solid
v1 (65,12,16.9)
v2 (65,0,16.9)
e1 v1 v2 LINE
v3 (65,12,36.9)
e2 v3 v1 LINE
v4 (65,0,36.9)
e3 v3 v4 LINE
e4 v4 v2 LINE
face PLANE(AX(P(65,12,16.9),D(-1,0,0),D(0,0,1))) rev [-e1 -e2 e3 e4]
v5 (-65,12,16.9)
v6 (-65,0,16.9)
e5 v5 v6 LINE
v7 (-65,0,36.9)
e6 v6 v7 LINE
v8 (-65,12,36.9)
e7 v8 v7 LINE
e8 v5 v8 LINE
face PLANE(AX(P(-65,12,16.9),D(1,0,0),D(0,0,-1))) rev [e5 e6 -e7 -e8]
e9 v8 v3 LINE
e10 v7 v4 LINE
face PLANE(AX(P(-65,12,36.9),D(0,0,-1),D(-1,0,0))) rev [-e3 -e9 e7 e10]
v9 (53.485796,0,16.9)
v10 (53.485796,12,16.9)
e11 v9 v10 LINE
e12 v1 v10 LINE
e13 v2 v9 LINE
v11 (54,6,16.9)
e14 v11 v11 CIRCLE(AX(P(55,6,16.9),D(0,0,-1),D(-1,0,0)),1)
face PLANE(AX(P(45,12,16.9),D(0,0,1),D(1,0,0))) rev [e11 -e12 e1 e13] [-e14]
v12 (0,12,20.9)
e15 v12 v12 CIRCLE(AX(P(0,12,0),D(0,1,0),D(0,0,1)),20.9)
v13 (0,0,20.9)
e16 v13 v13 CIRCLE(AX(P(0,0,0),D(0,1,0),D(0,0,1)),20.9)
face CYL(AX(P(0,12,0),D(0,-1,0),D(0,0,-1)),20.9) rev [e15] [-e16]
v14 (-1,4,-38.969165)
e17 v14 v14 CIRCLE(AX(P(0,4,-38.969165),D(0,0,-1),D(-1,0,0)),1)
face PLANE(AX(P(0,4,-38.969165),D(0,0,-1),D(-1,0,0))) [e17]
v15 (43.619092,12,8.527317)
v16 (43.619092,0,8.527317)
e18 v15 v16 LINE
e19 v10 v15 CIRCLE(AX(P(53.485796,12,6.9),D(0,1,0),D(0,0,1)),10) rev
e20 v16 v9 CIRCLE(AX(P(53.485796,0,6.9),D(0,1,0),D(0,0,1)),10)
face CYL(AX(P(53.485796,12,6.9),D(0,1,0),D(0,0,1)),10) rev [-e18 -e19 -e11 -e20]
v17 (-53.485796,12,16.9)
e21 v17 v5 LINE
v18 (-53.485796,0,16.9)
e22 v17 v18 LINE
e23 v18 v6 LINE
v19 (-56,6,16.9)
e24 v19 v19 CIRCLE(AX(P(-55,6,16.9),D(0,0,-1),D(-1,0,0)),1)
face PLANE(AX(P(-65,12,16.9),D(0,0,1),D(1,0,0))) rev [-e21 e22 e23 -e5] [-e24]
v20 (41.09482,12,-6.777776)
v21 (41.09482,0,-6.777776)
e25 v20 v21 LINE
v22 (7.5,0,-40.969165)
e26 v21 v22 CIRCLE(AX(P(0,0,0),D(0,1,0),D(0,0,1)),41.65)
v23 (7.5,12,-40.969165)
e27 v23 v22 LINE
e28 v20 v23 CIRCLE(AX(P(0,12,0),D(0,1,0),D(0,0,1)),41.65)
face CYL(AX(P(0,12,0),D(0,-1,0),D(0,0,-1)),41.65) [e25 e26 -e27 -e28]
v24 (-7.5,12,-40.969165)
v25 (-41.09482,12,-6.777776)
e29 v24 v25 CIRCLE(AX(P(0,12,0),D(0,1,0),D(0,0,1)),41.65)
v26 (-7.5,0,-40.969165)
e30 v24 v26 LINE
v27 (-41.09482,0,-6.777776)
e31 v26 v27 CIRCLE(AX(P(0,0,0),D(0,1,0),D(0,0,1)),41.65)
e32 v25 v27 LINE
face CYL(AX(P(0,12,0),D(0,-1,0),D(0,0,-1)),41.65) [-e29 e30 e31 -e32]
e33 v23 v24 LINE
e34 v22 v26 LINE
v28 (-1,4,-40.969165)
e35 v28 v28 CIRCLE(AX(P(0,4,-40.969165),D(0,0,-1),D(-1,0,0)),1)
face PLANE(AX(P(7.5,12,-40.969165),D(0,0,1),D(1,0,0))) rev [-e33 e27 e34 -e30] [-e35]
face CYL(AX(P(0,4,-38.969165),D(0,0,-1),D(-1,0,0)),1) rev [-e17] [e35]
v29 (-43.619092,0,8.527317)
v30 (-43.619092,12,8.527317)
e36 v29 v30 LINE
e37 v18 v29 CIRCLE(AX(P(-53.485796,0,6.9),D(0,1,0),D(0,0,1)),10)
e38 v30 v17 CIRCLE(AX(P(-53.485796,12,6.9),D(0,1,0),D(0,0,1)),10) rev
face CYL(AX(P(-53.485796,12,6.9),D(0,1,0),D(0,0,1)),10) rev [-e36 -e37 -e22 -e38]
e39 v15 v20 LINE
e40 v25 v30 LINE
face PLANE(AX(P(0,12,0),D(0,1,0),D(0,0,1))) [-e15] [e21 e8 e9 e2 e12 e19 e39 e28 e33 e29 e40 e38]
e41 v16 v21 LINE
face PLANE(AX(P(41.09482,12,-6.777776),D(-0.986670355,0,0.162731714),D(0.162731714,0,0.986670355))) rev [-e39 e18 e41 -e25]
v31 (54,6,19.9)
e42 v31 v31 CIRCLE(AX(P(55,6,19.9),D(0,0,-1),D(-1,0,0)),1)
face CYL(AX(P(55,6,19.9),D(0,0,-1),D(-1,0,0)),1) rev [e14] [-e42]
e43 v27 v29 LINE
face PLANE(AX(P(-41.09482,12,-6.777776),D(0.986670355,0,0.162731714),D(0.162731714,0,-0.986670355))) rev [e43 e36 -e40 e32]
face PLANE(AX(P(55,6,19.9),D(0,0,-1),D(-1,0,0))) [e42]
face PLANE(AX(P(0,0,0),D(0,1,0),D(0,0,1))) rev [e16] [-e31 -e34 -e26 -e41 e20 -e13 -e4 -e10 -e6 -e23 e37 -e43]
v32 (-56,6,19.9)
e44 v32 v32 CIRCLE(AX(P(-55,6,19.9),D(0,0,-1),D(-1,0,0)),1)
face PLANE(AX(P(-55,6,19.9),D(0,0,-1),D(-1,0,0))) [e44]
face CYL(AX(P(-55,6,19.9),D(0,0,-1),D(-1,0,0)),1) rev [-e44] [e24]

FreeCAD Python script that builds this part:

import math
import FreeCAD as App
import Part
import Sketcher

V = App.Vector


def edges_at(feature, points):
    """Names of the edges that pass closest to the given points."""
    edges = feature.Shape.Edges
    near = lambda p: min(range(len(edges)), key=lambda i: edges[i].distToShape(Part.Vertex(*p))[0])
    return sorted({f"Edge{near(p) + 1}" for p in points})

doc = App.newDocument("Part")
params = doc.addObject("Spreadsheet::Sheet", "Params")
for row, (alias, value) in enumerate([
    ("sketch1_diameter", "41.8 mm"),
    ("sketch1_width", "20 mm"),
    ("sketch1_width2", "130 mm"),
    ("sketch1_radius", "41.65 mm"),
    ("pad1_length", "12 mm"),
    ("sketch2_diameter", "2 mm"),
    ("pocket1_length", "3 mm"),
    ("sketch3_diameter", "2 mm"),
    ("pocket2_length", "3 mm"),
    ("fillet_radius", "10 mm"),
    ("sketch4_width", "15 mm"),
    ("sketch5_diameter", "2 mm"),
    ("pocket4_length", "2 mm"),
], start=1):
    params.set(f"A{row}", alias)
    params.set(f"B{row}", "=" + value)
    params.setAlias(f"B{row}", alias)

body = doc.addObject("PartDesign::Body", "Body")

sketch1 = body.newObject("Sketcher::SketchObject", "Sketch")
sketch1.AttachmentSupport = (doc.getObject("XZ_Plane"), [""])
sketch1.MapMode = "FlatFace"
sketch1.addGeometry([
    Part.LineSegment(V(-41.09482, -6.777776, 0), V(-45, 16.9, 0)),
    Part.LineSegment(V(-45, 16.9, 0), V(-65, 16.9, 0)),
    Part.LineSegment(V(-65, 16.9, 0), V(-65, 36.9, 0)),
    Part.LineSegment(V(-65, 36.9, 0), V(65, 36.9, 0)),
    Part.LineSegment(V(65, 36.9, 0), V(65, 16.9, 0)),
    Part.LineSegment(V(65, 16.9, 0), V(45, 16.9, 0)),
    Part.LineSegment(V(45, 16.9, 0), V(41.09482, -6.777776, 0)),
    Part.ArcOfCircle(Part.Circle(V(0, 0, 0), V(0, 0, 1), 41.65), math.radians(-170.63451), math.radians(-9.36549)),
    Part.Circle(V(0, 0, 0), V(0, 0, 1), 20.9),
], False)
sketch1.addConstraint([
    Sketcher.Constraint("Coincident", 0, 2, 1, 1),
    Sketcher.Constraint("Coincident", 1, 2, 2, 1),
    Sketcher.Constraint("Coincident", 2, 2, 3, 1),
    Sketcher.Constraint("Coincident", 3, 2, 4, 1),
    Sketcher.Constraint("Coincident", 4, 2, 5, 1),
    Sketcher.Constraint("Coincident", 5, 2, 6, 1),
    Sketcher.Constraint("Tangent", 6, 2, 7, 2),
    Sketcher.Constraint("Tangent", 7, 1, 0, 1),
    Sketcher.Constraint("Horizontal", 1),
    Sketcher.Constraint("Vertical", 2),
    Sketcher.Constraint("Horizontal", 3),
    Sketcher.Constraint("Vertical", 4),
    Sketcher.Constraint("Horizontal", 5),
    Sketcher.Constraint("Coincident", 7, 3, -1, 1),
    Sketcher.Constraint("Coincident", 8, 3, -1, 1),
    Sketcher.Constraint("Symmetric", 1, 2, 4, 2, -2),
    Sketcher.Constraint("Horizontal", 6, 2, 7, 1),
    Sketcher.Constraint("Equal", 5, 2),
    Sketcher.Constraint("Diameter", 8, 41.8),
    Sketcher.Constraint("DistanceX", 1, 2, 1, 1, 20.0),
    Sketcher.Constraint("DistanceX", 3, 1, 3, 2, 130.0),
    Sketcher.Constraint("Radius", 7, 41.65),
    Sketcher.Constraint("DistanceY", -1, 1, 0, 2, 16.9),
])
sketch1.setExpression("Constraints[18]", "Params.sketch1_diameter")
sketch1.setExpression("Constraints[19]", "Params.sketch1_width")
sketch1.setExpression("Constraints[20]", "Params.sketch1_width2")
sketch1.setExpression("Constraints[21]", "Params.sketch1_radius")
pad1 = body.newObject("PartDesign::Pad", "Pad")
pad1.Profile = sketch1
pad1.setExpression("Length", "Params.pad1_length")
pad1.Reversed = True

sketch2 = body.newObject("Sketcher::SketchObject", "Sketch001")
sketch2.AttachmentSupport = (doc.getObject("XY_Plane"), [""])
sketch2.MapMode = "FlatFace"
sketch2.AttachmentOffset = App.Placement(V(0, 0, 16.9), App.Rotation())
sketch2.addGeometry(Part.Circle(V(55, 6, 0), V(0, 0, 1), 1), False)
sketch2.addConstraint([
    Sketcher.Constraint("Diameter", 0, 2.0),
    Sketcher.Constraint("DistanceX", -1, 1, 0, 3, 55.0),
    Sketcher.Constraint("DistanceY", -1, 1, 0, 3, 6.0),
])
sketch2.setExpression("Constraints[0]", "Params.sketch2_diameter")
pocket1 = body.newObject("PartDesign::Pocket", "Pocket")
pocket1.Profile = sketch2
pocket1.setExpression("Length", "Params.pocket1_length")
pocket1.Reversed = True

sketch3 = body.newObject("Sketcher::SketchObject", "Sketch002")
sketch3.AttachmentSupport = (doc.getObject("XY_Plane"), [""])
sketch3.MapMode = "FlatFace"
sketch3.AttachmentOffset = App.Placement(V(0, 0, 16.9), App.Rotation())
sketch3.addGeometry(Part.Circle(V(-55, 6, 0), V(0, 0, 1), 1), False)
sketch3.addConstraint([
    Sketcher.Constraint("Diameter", 0, 2.0),
    Sketcher.Constraint("DistanceX", 0, 3, -1, 1, 55.0),
    Sketcher.Constraint("DistanceY", -1, 1, 0, 3, 6.0),
])
sketch3.setExpression("Constraints[0]", "Params.sketch3_diameter")
pocket2 = body.newObject("PartDesign::Pocket", "Pocket001")
pocket2.Profile = sketch3
pocket2.setExpression("Length", "Params.pocket2_length")
pocket2.Reversed = True
doc.recompute()

fillet = body.newObject("PartDesign::Fillet", "Fillet")
fillet.Base = (pocket2, edges_at(pocket2, [(-45, 6, 16.9), (45, 6, 16.9)]))
fillet.setExpression("Radius", "Params.fillet_radius")

sketch4 = body.newObject("Sketcher::SketchObject", "Sketch003")
sketch4.AttachmentSupport = (doc.getObject("XZ_Plane"), [""])
sketch4.MapMode = "FlatFace"
sketch4.addGeometry([
    Part.LineSegment(V(-7.5, -40.969165, 0), V(-7.5, -44.957865, 0)),
    Part.LineSegment(V(-7.5, -44.957865, 0), V(7.5, -44.957865, 0)),
    Part.LineSegment(V(7.5, -44.957865, 0), V(7.5, -40.969165, 0)),
    Part.LineSegment(V(7.5, -40.969165, 0), V(-7.5, -40.969165, 0)),
], False)
sketch4.addConstraint([
    Sketcher.Constraint("Coincident", 0, 2, 1, 1),
    Sketcher.Constraint("Coincident", 1, 2, 2, 1),
    Sketcher.Constraint("Coincident", 2, 2, 3, 1),
    Sketcher.Constraint("Coincident", 3, 2, 0, 1),
    Sketcher.Constraint("Vertical", 0),
    Sketcher.Constraint("Horizontal", 1),
    Sketcher.Constraint("Vertical", 2),
    Sketcher.Constraint("Horizontal", 3),
    Sketcher.Constraint("DistanceX", 1, 1, 1, 2, 15.0),
    Sketcher.Constraint("DistanceX", 0, 2, -1, 1, 7.5),
    Sketcher.Constraint("DistanceY", 0, 2, 0, 1, 3.9887),
    Sketcher.Constraint("DistanceY", 0, 2, -1, 1, 44.957865),
])
sketch4.setExpression("Constraints[8]", "Params.sketch4_width")
pocket3 = body.newObject("PartDesign::Pocket", "Pocket002")
pocket3.Profile = sketch4
pocket3.Type = "ThroughAll"

sketch5 = body.newObject("Sketcher::SketchObject", "Sketch004")
sketch5.AttachmentSupport = (doc.getObject("XY_Plane"), [""])
sketch5.MapMode = "FlatFace"
sketch5.AttachmentOffset = App.Placement(V(0, 0, -40.969165), App.Rotation())
sketch5.addGeometry(Part.Circle(V(0, 4, 0), V(0, 0, 1), 1), False)
sketch5.addConstraint([
    Sketcher.Constraint("PointOnObject", 0, 3, -2),
    Sketcher.Constraint("Diameter", 0, 2.0),
    Sketcher.Constraint("DistanceY", -1, 1, 0, 3, 4.0),
])
sketch5.setExpression("Constraints[1]", "Params.sketch5_diameter")
pocket4 = body.newObject("PartDesign::Pocket", "Pocket003")
pocket4.Profile = sketch5
pocket4.setExpression("Length", "Params.pocket4_length")
pocket4.Reversed = True

doc.recompute()
